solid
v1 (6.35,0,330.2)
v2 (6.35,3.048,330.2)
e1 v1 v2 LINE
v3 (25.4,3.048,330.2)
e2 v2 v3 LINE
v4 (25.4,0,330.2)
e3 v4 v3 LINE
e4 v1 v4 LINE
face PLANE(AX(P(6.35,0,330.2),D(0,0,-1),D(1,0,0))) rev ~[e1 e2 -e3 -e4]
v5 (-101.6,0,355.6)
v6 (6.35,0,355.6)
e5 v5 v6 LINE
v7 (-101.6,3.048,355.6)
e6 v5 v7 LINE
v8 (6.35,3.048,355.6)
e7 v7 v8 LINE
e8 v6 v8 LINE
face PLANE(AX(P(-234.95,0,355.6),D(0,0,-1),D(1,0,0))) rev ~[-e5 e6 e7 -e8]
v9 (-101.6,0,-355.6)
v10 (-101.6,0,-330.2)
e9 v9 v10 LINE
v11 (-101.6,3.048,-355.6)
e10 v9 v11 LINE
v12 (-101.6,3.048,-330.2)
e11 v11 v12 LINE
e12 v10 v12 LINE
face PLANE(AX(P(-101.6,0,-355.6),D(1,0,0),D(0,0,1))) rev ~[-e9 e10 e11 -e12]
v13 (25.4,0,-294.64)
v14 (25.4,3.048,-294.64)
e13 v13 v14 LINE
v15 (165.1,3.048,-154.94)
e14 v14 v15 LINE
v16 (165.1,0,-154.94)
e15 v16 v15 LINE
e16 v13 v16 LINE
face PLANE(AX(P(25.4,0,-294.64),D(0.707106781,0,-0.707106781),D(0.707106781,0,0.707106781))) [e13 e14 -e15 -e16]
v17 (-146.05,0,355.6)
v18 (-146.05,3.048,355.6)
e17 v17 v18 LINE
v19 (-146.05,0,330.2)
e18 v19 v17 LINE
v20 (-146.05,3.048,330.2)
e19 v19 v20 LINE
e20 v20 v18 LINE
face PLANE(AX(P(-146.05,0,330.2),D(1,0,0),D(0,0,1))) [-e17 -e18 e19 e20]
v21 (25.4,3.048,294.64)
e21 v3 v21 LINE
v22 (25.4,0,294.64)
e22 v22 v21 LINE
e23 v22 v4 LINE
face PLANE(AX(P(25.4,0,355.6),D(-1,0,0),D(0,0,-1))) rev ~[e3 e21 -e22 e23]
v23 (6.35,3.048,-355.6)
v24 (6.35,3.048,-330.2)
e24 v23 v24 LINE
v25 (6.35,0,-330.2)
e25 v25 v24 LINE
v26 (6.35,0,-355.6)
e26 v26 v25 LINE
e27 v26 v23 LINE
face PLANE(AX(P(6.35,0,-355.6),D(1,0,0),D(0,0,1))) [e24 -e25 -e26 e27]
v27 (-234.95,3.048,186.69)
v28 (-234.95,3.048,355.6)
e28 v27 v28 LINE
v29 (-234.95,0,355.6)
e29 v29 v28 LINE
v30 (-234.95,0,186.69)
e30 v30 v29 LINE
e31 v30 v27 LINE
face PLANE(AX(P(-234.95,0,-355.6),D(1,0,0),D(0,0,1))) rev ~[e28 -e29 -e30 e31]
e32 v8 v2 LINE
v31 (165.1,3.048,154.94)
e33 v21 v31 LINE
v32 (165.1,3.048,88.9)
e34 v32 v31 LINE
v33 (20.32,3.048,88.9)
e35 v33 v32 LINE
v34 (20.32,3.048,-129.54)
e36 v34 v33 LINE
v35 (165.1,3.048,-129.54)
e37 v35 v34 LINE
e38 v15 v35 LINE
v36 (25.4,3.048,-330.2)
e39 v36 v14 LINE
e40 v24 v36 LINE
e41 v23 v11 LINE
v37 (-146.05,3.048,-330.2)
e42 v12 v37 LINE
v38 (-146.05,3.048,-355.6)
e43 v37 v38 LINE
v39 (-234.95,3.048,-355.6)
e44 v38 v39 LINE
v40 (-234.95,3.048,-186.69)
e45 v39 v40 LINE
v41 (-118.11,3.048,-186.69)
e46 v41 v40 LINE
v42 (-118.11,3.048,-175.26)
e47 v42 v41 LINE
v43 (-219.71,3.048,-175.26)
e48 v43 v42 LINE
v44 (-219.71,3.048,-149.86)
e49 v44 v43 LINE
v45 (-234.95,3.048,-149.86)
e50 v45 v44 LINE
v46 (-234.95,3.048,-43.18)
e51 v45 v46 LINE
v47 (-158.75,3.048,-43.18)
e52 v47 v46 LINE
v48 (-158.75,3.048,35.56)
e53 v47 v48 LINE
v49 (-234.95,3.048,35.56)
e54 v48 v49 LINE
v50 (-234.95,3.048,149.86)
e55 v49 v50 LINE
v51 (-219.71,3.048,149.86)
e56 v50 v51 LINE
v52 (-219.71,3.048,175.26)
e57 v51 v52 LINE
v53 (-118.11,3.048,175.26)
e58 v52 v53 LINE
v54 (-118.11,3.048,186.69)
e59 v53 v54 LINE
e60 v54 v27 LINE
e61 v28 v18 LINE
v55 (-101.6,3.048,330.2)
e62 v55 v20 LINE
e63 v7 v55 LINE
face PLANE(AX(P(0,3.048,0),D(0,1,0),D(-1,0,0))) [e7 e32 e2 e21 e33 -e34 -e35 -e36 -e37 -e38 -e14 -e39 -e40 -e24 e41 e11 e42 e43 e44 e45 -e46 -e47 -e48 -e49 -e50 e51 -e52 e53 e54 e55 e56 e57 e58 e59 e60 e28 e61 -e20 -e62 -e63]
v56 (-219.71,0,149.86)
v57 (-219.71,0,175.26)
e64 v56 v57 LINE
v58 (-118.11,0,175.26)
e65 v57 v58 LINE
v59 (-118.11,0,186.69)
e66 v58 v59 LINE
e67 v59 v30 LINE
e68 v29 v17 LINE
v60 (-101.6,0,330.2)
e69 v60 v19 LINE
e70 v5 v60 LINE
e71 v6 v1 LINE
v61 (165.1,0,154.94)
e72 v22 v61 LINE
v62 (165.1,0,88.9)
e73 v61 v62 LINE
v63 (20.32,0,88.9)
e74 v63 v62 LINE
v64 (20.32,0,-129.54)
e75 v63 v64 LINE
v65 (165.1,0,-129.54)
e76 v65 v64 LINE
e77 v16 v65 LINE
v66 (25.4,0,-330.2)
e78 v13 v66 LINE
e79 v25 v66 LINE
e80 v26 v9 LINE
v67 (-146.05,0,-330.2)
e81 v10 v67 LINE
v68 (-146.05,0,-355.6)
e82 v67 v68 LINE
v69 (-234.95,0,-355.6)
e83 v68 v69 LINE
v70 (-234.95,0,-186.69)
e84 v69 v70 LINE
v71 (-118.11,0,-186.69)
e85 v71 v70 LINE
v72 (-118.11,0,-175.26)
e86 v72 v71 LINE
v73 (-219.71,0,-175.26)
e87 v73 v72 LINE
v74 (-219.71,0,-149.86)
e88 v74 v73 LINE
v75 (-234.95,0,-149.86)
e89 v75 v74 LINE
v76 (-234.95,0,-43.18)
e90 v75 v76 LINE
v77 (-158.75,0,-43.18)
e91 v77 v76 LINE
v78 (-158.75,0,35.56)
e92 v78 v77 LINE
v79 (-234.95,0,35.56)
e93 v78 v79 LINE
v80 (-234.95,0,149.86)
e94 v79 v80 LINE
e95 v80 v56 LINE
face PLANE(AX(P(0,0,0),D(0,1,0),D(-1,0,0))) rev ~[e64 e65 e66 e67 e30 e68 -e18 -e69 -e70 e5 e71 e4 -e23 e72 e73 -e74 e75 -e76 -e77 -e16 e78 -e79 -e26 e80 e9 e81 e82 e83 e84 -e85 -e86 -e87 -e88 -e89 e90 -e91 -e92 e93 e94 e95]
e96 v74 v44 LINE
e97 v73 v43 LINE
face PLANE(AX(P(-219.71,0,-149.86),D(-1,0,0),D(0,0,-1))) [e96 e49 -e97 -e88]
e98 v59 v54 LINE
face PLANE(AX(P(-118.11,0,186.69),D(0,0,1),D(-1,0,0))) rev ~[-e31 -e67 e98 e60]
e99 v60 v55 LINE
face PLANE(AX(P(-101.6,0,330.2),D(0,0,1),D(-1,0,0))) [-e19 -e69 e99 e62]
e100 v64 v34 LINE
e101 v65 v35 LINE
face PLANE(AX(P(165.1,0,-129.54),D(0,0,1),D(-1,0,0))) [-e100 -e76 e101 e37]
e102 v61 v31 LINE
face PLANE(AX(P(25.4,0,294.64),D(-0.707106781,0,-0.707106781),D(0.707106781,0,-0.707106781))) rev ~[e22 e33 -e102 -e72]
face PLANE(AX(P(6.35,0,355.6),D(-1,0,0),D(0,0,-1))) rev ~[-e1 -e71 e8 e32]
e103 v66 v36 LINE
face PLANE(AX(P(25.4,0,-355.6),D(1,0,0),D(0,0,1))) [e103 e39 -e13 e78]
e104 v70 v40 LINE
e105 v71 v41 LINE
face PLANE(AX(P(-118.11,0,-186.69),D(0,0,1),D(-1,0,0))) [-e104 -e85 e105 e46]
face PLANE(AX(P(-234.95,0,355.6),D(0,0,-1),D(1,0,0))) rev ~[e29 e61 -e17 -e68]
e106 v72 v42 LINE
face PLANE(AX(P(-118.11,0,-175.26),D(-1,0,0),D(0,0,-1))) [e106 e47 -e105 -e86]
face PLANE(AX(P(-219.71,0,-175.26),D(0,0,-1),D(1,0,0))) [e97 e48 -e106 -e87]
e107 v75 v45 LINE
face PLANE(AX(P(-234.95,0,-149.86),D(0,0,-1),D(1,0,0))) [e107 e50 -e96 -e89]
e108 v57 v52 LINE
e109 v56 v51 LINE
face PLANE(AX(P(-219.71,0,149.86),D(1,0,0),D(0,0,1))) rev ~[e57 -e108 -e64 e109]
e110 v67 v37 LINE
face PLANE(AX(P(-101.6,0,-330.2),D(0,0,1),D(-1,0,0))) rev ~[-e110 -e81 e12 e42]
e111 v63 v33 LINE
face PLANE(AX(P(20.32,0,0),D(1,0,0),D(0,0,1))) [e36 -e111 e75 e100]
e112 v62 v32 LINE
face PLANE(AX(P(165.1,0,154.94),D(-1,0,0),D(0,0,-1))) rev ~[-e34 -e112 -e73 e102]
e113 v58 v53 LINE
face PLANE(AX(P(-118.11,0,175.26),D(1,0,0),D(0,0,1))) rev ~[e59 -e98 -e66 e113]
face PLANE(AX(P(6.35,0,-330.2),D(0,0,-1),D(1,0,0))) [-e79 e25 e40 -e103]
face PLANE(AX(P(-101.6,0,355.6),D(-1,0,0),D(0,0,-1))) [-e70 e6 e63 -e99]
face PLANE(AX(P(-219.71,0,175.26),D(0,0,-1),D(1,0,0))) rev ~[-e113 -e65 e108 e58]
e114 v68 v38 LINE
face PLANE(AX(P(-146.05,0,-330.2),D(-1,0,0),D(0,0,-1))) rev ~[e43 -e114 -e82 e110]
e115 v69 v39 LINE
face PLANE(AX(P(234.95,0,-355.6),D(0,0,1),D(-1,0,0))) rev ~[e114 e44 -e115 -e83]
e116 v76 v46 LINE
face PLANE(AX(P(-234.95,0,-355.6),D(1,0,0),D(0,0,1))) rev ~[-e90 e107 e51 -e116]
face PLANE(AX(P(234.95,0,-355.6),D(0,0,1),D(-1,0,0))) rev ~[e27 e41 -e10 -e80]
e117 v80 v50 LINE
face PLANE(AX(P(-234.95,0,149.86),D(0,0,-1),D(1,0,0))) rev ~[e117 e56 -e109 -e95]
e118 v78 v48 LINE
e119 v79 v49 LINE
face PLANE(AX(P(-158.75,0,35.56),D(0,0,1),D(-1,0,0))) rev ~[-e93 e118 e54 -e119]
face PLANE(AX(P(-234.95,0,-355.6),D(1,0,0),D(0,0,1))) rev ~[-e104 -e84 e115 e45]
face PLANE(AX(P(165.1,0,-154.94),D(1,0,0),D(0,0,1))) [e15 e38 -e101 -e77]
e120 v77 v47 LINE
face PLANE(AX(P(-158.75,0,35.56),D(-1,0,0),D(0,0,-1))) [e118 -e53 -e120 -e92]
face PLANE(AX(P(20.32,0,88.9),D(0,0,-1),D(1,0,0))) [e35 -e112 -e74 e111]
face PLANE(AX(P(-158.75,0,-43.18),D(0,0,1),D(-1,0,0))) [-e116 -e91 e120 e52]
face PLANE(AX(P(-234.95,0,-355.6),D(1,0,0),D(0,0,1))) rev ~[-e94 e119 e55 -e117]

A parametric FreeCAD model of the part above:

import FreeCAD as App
import Part
import Sketcher

V = App.Vector
Q = App.Units.Quantity

doc = App.newDocument("Part")
body = doc.addObject("PartDesign::Body", "Body")

sketch1 = doc.addObject("Sketcher::SketchObject", "Sketch")
body.addObject(sketch1)
sketch1.AttachmentSupport = (doc.XZ_Plane, [""])
sketch1.MapMode = "FlatFace"
sketch1.addGeometry([
    Part.LineSegment(V(-234.95, -355.6, 0), V(-234.95, 355.6, 0)),
    Part.LineSegment(V(-234.95, 355.6, 0), V(234.95, 355.6, 0)),
    Part.LineSegment(V(234.95, 355.6, 0), V(234.95, -355.6, 0)),
    Part.LineSegment(V(234.95, -355.6, 0), V(-234.95, -355.6, 0)),
], False)
sketch1.addConstraint([
    Sketcher.Constraint("Coincident", 0, 2, 1, 1),
    Sketcher.Constraint("Coincident", 1, 2, 2, 1),
    Sketcher.Constraint("Coincident", 2, 2, 3, 1),
    Sketcher.Constraint("Coincident", 3, 2, 0, 1),
    Sketcher.Constraint("Vertical", 0),
    Sketcher.Constraint("Horizontal", 1),
    Sketcher.Constraint("Vertical", 2),
    Sketcher.Constraint("Horizontal", 3),
    Sketcher.Constraint("Symmetric", 0, 2, 2, 2, -1, 1),
    Sketcher.Constraint("DistanceY", 0, 1, 0, 2, Q("28 in")),
    Sketcher.Constraint("DistanceX", 1, 1, 1, 2, Q("18.5 in")),
])
pad1 = doc.addObject("PartDesign::Pad", "Pad")
body.addObject(pad1)
pad1.Profile = sketch1
pad1.Length = Q("0.12 in")
pad1.Reversed = True

sketch2 = doc.addObject("Sketcher::SketchObject", "Sketch001")
body.addObject(sketch2)
sketch2.AttachmentSupport = (doc.XZ_Plane, [""])
sketch2.MapMode = "FlatFace"
sketch2.addGeometry([
    Part.LineSegment(V(-118.11, 186.69, 0), V(-234.95, 186.69, 0)),
    Part.LineSegment(V(-234.95, 186.69, 0), V(-234.95, 149.86, 0)),
    Part.LineSegment(V(-234.95, 149.86, 0), V(-219.71, 149.86, 0)),
    Part.LineSegment(V(-219.71, 149.86, 0), V(-219.71, 175.26, 0)),
    Part.LineSegment(V(-219.71, 175.26, 0), V(-118.11, 175.26, 0)),
    Part.LineSegment(V(-118.11, 175.26, 0), V(-118.11, 186.69, 0)),
    Part.LineSegment(V(234.95, 355.6, 0), V(25.4, 355.6, 0)),
    Part.LineSegment(V(25.4, 355.6, 0), V(25.4, 294.64, 0)),
    Part.LineSegment(V(25.4, 294.64, 0), V(165.1, 154.94, 0)),
    Part.LineSegment(V(165.1, 154.94, 0), V(165.1, 88.9, 0)),
    Part.LineSegment(V(165.1, 88.9, 0), V(20.32, 88.9, 0)),
    Part.LineSegment(V(20.32, 88.9, 0), V(20.32, -129.54, 0)),
    Part.LineSegment(V(20.32, -129.54, 0), V(165.1, -129.54, 0)),
    Part.LineSegment(V(165.1, -129.54, 0), V(165.1, -154.94, 0)),
    Part.LineSegment(V(165.1, -154.94, 0), V(25.4, -294.64, 0)),
    Part.LineSegment(V(25.4, -294.64, 0), V(25.4, -355.6, 0)),
    Part.LineSegment(V(25.4, -355.6, 0), V(234.95, -355.6, 0)),
    Part.LineSegment(V(234.95, -355.6, 0), V(234.95, 355.6, 0)),
    Part.LineSegment(V(-158.75, 35.56, 0), V(-234.95, 35.56, 0)),
    Part.LineSegment(V(-234.95, 35.56, 0), V(-234.95, -43.18, 0)),
    Part.LineSegment(V(-234.95, -43.18, 0), V(-158.75, -43.18, 0)),
    Part.LineSegment(V(-158.75, -43.18, 0), V(-158.75, 35.56, 0)),
    Part.LineSegment(V(-219.71, -149.86, 0), V(-234.95, -149.86, 0)),
    Part.LineSegment(V(-234.95, -149.86, 0), V(-234.95, -186.69, 0)),
    Part.LineSegment(V(-234.95, -186.69, 0), V(-118.11, -186.69, 0)),
    Part.LineSegment(V(-118.11, -186.69, 0), V(-118.11, -175.26, 0)),
    Part.LineSegment(V(-118.11, -175.26, 0), V(-219.71, -175.26, 0)),
    Part.LineSegment(V(-219.71, -175.26, 0), V(-219.71, -149.86, 0)),
], False)
sketch2.addConstraint([
    Sketcher.Constraint("Coincident", 0, 2, 1, 1),
    Sketcher.Constraint("Coincident", 1, 2, 2, 1),
    Sketcher.Constraint("Coincident", 2, 2, 3, 1),
    Sketcher.Constraint("Coincident", 3, 2, 4, 1),
    Sketcher.Constraint("Coincident", 4, 2, 5, 1),
    Sketcher.Constraint("Coincident", 5, 2, 0, 1),
    Sketcher.Constraint("Coincident", 6, 2, 7, 1),
    Sketcher.Constraint("Coincident", 7, 2, 8, 1),
    Sketcher.Constraint("Coincident", 8, 2, 9, 1),
    Sketcher.Constraint("Coincident", 9, 2, 10, 1),
    Sketcher.Constraint("Coincident", 10, 2, 11, 1),
    Sketcher.Constraint("Coincident", 11, 2, 12, 1),
    Sketcher.Constraint("Coincident", 12, 2, 13, 1),
    Sketcher.Constraint("Coincident", 13, 2, 14, 1),
    Sketcher.Constraint("Coincident", 14, 2, 15, 1),
    Sketcher.Constraint("Coincident", 15, 2, 16, 1),
    Sketcher.Constraint("Coincident", 16, 2, 17, 1),
    Sketcher.Constraint("Coincident", 17, 2, 6, 1),
    Sketcher.Constraint("Coincident", 18, 2, 19, 1),
    Sketcher.Constraint("Coincident", 19, 2, 20, 1),
    Sketcher.Constraint("Coincident", 20, 2, 21, 1),
    Sketcher.Constraint("Coincident", 21, 2, 18, 1),
    Sketcher.Constraint("Coincident", 22, 2, 23, 1),
    Sketcher.Constraint("Coincident", 23, 2, 24, 1),
    Sketcher.Constraint("Coincident", 24, 2, 25, 1),
    Sketcher.Constraint("Coincident", 25, 2, 26, 1),
    Sketcher.Constraint("Coincident", 26, 2, 27, 1),
    Sketcher.Constraint("Coincident", 27, 2, 22, 1),
    Sketcher.Constraint("Horizontal", 0),
    Sketcher.Constraint("Vertical", 1),
    Sketcher.Constraint("Horizontal", 2),
    Sketcher.Constraint("Vertical", 3),
    Sketcher.Constraint("Horizontal", 4),
    Sketcher.Constraint("Vertical", 5),
    Sketcher.Constraint("Horizontal", 6),
    Sketcher.Constraint("Vertical", 7),
    Sketcher.Constraint("Vertical", 9),
    Sketcher.Constraint("Horizontal", 10),
    Sketcher.Constraint("Vertical", 11),
    Sketcher.Constraint("Horizontal", 12),
    Sketcher.Constraint("Vertical", 13),
    Sketcher.Constraint("Vertical", 15),
    Sketcher.Constraint("Horizontal", 16),
    Sketcher.Constraint("Vertical", 17),
    Sketcher.Constraint("Horizontal", 18),
    Sketcher.Constraint("Vertical", 19),
    Sketcher.Constraint("Horizontal", 20),
    Sketcher.Constraint("Vertical", 21),
    Sketcher.Constraint("Horizontal", 22),
    Sketcher.Constraint("Vertical", 23),
    Sketcher.Constraint("Horizontal", 24),
    Sketcher.Constraint("Vertical", 25),
    Sketcher.Constraint("Horizontal", 26),
    Sketcher.Constraint("Vertical", 27),
    Sketcher.Constraint("Symmetric", 8, 2, 13, 2, -1),
    Sketcher.Constraint("Symmetric", 7, 2, 14, 2, -1),
    Sketcher.Constraint("Symmetric", 1, 2, 22, 2, -1),
    Sketcher.Constraint("Symmetric", 5, 2, 24, 2, -1),
    Sketcher.Constraint("Symmetric", 3, 2, 26, 2, -1),
    Sketcher.Constraint("Perpendicular", 8, 14),
    Sketcher.Constraint("Vertical", 1, 2, 18, 2),
    Sketcher.Constraint("Equal", 3, 13),
    Sketcher.Constraint("Equal", 7, 15),
    Sketcher.Constraint("DistanceX", 4, 1, 4, 2, Q("4 in")),
    Sketcher.Constraint("DistanceX", 18, 2, 18, 1, Q("3 in")),
    Sketcher.Constraint("DistanceY", 3, 1, 3, 2, Q("1 in")),
    Sketcher.Constraint("DistanceX", 10, 2, 10, 1, Q("5.7 in")),
    Sketcher.Constraint("DistanceY", 7, 2, 7, 1, Q("2.4 in")),
    Sketcher.Constraint("DistanceX", -1, 1, 6, 2, Q("1 in")),
    Sketcher.Constraint("DistanceX", 6, 2, 6, 1, Q("8.25 in")),
    Sketcher.Constraint("DistanceY", -1, 1, 18, 2, Q("1.4 in")),
    Sketcher.Constraint("DistanceY", 19, 2, -1, 1, Q("1.7 in")),
    Sketcher.Constraint("DistanceY", 18, 2, 1, 2, Q("4.5 in")),
    Sketcher.Constraint("DistanceX", 2, 2, 20, 2, Q("2.4 in")),
    Sketcher.Constraint("DistanceY", 17, 1, 17, 2, Q("28 in")),
    Sketcher.Constraint("DistanceX", 13, 2, 16, 2, Q("2.75 in")),
    Sketcher.Constraint("DistanceY", 9, 2, 9, 1, Q("2.6 in")),
    Sketcher.Constraint("DistanceY", 1, 2, 1, 1, Q("1.45 in")),
    Sketcher.Constraint("DistanceX", 0, 2, -1, 1, Q("9.25 in")),
])
pocket1 = doc.addObject("PartDesign::Pocket", "Pocket")
body.addObject(pocket1)
pocket1.Profile = sketch2
pocket1.Length = Q("0.12 in")

sketch3 = doc.addObject("Sketcher::SketchObject", "Sketch002")
body.addObject(sketch3)
sketch3.AttachmentSupport = (doc.XZ_Plane, [""])
sketch3.MapMode = "FlatFace"
sketch3.addGeometry([
    Part.LineSegment(V(25.4, 330.2, 0), V(25.4, 355.6, 0)),
    Part.LineSegment(V(25.4, 355.6, 0), V(6.35, 355.6, 0)),
    Part.LineSegment(V(6.35, 355.6, 0), V(6.35, 330.2, 0)),
    Part.LineSegment(V(6.35, 330.2, 0), V(25.4, 330.2, 0)),
    Part.LineSegment(V(-101.6, 330.2, 0), V(-101.6, 355.6, 0)),
    Part.LineSegment(V(-101.6, 355.6, 0), V(-146.05, 355.6, 0)),
    Part.LineSegment(V(-146.05, 355.6, 0), V(-146.05, 330.2, 0)),
    Part.LineSegment(V(-146.05, 330.2, 0), V(-101.6, 330.2, 0)),
    Part.LineSegment(V(25.4, -355.6, 0), V(25.4, -330.2, 0)),
    Part.LineSegment(V(25.4, -330.2, 0), V(6.35, -330.2, 0)),
    Part.LineSegment(V(6.35, -330.2, 0), V(6.35, -355.6, 0)),
    Part.LineSegment(V(6.35, -355.6, 0), V(25.4, -355.6, 0)),
    Part.LineSegment(V(-146.05, -355.6, 0), V(-101.6, -355.6, 0)),
    Part.LineSegment(V(-101.6, -355.6, 0), V(-101.6, -330.2, 0)),
    Part.LineSegment(V(-101.6, -330.2, 0), V(-146.05, -330.2, 0)),
    Part.LineSegment(V(-146.05, -330.2, 0), V(-146.05, -355.6, 0)),
], False)
sketch3.addConstraint([
    Sketcher.Constraint("Coincident", 0, 2, 1, 1),
    Sketcher.Constraint("Coincident", 1, 2, 2, 1),
    Sketcher.Constraint("Coincident", 2, 2, 3, 1),
    Sketcher.Constraint("Coincident", 3, 2, 0, 1),
    Sketcher.Constraint("Coincident", 4, 2, 5, 1),
    Sketcher.Constraint("Coincident", 5, 2, 6, 1),
    Sketcher.Constraint("Coincident", 6, 2, 7, 1),
    Sketcher.Constraint("Coincident", 7, 2, 4, 1),
    Sketcher.Constraint("Coincident", 8, 2, 9, 1),
    Sketcher.Constraint("Coincident", 9, 2, 10, 1),
    Sketcher.Constraint("Coincident", 10, 2, 11, 1),
    Sketcher.Constraint("Coincident", 11, 2, 8, 1),
    Sketcher.Constraint("Coincident", 12, 2, 13, 1),
    Sketcher.Constraint("Coincident", 13, 2, 14, 1),
    Sketcher.Constraint("Coincident", 14, 2, 15, 1),
    Sketcher.Constraint("Coincident", 15, 2, 12, 1),
    Sketcher.Constraint("Vertical", 0),
    Sketcher.Constraint("Horizontal", 1),
    Sketcher.Constraint("Vertical", 2),
    Sketcher.Constraint("Horizontal", 3),
    Sketcher.Constraint("Vertical", 4),
    Sketcher.Constraint("Horizontal", 5),
    Sketcher.Constraint("Vertical", 6),
    Sketcher.Constraint("Horizontal", 7),
    Sketcher.Constraint("Vertical", 8),
    Sketcher.Constraint("Horizontal", 9),
    Sketcher.Constraint("Vertical", 10),
    Sketcher.Constraint("Horizontal", 11),
    Sketcher.Constraint("Horizontal", 12),
    Sketcher.Constraint("Vertical", 13),
    Sketcher.Constraint("Horizontal", 14),
    Sketcher.Constraint("Vertical", 15),
    Sketcher.Constraint("Symmetric", 3, 2, 8, 2, -1),
    Sketcher.Constraint("Symmetric", 1, 2, 10, 2, -1),
    Sketcher.Constraint("Symmetric", 4, 2, 12, 2, -1),
    Sketcher.Constraint("Symmetric", 6, 2, 14, 2, -1),
    Sketcher.Constraint("Horizontal", 1, 2, 4, 2),
    Sketcher.Constraint("Horizontal", 3, 2, 6, 2),
    Sketcher.Constraint("DistanceY", 0, 1, 0, 2, Q("1 in")),
    Sketcher.Constraint("DistanceX", -1, 1, 0, 2, Q("1 in")),
    Sketcher.Constraint("DistanceX", 1, 2, 1, 1, Q("0.75 in")),
    Sketcher.Constraint("DistanceX", 5, 2, 5, 1, Q("1.75 in")),
    Sketcher.Constraint("DistanceY", -1, 1, 0, 2, Q("14 in")),
    Sketcher.Constraint("DistanceX", 4, 2, -1, 1, Q("4 in")),
])
pocket2 = doc.addObject("PartDesign::Pocket", "Pocket001")
body.addObject(pocket2)
pocket2.Profile = sketch3
pocket2.Length = Q("0.12 in")

doc.recompute()
